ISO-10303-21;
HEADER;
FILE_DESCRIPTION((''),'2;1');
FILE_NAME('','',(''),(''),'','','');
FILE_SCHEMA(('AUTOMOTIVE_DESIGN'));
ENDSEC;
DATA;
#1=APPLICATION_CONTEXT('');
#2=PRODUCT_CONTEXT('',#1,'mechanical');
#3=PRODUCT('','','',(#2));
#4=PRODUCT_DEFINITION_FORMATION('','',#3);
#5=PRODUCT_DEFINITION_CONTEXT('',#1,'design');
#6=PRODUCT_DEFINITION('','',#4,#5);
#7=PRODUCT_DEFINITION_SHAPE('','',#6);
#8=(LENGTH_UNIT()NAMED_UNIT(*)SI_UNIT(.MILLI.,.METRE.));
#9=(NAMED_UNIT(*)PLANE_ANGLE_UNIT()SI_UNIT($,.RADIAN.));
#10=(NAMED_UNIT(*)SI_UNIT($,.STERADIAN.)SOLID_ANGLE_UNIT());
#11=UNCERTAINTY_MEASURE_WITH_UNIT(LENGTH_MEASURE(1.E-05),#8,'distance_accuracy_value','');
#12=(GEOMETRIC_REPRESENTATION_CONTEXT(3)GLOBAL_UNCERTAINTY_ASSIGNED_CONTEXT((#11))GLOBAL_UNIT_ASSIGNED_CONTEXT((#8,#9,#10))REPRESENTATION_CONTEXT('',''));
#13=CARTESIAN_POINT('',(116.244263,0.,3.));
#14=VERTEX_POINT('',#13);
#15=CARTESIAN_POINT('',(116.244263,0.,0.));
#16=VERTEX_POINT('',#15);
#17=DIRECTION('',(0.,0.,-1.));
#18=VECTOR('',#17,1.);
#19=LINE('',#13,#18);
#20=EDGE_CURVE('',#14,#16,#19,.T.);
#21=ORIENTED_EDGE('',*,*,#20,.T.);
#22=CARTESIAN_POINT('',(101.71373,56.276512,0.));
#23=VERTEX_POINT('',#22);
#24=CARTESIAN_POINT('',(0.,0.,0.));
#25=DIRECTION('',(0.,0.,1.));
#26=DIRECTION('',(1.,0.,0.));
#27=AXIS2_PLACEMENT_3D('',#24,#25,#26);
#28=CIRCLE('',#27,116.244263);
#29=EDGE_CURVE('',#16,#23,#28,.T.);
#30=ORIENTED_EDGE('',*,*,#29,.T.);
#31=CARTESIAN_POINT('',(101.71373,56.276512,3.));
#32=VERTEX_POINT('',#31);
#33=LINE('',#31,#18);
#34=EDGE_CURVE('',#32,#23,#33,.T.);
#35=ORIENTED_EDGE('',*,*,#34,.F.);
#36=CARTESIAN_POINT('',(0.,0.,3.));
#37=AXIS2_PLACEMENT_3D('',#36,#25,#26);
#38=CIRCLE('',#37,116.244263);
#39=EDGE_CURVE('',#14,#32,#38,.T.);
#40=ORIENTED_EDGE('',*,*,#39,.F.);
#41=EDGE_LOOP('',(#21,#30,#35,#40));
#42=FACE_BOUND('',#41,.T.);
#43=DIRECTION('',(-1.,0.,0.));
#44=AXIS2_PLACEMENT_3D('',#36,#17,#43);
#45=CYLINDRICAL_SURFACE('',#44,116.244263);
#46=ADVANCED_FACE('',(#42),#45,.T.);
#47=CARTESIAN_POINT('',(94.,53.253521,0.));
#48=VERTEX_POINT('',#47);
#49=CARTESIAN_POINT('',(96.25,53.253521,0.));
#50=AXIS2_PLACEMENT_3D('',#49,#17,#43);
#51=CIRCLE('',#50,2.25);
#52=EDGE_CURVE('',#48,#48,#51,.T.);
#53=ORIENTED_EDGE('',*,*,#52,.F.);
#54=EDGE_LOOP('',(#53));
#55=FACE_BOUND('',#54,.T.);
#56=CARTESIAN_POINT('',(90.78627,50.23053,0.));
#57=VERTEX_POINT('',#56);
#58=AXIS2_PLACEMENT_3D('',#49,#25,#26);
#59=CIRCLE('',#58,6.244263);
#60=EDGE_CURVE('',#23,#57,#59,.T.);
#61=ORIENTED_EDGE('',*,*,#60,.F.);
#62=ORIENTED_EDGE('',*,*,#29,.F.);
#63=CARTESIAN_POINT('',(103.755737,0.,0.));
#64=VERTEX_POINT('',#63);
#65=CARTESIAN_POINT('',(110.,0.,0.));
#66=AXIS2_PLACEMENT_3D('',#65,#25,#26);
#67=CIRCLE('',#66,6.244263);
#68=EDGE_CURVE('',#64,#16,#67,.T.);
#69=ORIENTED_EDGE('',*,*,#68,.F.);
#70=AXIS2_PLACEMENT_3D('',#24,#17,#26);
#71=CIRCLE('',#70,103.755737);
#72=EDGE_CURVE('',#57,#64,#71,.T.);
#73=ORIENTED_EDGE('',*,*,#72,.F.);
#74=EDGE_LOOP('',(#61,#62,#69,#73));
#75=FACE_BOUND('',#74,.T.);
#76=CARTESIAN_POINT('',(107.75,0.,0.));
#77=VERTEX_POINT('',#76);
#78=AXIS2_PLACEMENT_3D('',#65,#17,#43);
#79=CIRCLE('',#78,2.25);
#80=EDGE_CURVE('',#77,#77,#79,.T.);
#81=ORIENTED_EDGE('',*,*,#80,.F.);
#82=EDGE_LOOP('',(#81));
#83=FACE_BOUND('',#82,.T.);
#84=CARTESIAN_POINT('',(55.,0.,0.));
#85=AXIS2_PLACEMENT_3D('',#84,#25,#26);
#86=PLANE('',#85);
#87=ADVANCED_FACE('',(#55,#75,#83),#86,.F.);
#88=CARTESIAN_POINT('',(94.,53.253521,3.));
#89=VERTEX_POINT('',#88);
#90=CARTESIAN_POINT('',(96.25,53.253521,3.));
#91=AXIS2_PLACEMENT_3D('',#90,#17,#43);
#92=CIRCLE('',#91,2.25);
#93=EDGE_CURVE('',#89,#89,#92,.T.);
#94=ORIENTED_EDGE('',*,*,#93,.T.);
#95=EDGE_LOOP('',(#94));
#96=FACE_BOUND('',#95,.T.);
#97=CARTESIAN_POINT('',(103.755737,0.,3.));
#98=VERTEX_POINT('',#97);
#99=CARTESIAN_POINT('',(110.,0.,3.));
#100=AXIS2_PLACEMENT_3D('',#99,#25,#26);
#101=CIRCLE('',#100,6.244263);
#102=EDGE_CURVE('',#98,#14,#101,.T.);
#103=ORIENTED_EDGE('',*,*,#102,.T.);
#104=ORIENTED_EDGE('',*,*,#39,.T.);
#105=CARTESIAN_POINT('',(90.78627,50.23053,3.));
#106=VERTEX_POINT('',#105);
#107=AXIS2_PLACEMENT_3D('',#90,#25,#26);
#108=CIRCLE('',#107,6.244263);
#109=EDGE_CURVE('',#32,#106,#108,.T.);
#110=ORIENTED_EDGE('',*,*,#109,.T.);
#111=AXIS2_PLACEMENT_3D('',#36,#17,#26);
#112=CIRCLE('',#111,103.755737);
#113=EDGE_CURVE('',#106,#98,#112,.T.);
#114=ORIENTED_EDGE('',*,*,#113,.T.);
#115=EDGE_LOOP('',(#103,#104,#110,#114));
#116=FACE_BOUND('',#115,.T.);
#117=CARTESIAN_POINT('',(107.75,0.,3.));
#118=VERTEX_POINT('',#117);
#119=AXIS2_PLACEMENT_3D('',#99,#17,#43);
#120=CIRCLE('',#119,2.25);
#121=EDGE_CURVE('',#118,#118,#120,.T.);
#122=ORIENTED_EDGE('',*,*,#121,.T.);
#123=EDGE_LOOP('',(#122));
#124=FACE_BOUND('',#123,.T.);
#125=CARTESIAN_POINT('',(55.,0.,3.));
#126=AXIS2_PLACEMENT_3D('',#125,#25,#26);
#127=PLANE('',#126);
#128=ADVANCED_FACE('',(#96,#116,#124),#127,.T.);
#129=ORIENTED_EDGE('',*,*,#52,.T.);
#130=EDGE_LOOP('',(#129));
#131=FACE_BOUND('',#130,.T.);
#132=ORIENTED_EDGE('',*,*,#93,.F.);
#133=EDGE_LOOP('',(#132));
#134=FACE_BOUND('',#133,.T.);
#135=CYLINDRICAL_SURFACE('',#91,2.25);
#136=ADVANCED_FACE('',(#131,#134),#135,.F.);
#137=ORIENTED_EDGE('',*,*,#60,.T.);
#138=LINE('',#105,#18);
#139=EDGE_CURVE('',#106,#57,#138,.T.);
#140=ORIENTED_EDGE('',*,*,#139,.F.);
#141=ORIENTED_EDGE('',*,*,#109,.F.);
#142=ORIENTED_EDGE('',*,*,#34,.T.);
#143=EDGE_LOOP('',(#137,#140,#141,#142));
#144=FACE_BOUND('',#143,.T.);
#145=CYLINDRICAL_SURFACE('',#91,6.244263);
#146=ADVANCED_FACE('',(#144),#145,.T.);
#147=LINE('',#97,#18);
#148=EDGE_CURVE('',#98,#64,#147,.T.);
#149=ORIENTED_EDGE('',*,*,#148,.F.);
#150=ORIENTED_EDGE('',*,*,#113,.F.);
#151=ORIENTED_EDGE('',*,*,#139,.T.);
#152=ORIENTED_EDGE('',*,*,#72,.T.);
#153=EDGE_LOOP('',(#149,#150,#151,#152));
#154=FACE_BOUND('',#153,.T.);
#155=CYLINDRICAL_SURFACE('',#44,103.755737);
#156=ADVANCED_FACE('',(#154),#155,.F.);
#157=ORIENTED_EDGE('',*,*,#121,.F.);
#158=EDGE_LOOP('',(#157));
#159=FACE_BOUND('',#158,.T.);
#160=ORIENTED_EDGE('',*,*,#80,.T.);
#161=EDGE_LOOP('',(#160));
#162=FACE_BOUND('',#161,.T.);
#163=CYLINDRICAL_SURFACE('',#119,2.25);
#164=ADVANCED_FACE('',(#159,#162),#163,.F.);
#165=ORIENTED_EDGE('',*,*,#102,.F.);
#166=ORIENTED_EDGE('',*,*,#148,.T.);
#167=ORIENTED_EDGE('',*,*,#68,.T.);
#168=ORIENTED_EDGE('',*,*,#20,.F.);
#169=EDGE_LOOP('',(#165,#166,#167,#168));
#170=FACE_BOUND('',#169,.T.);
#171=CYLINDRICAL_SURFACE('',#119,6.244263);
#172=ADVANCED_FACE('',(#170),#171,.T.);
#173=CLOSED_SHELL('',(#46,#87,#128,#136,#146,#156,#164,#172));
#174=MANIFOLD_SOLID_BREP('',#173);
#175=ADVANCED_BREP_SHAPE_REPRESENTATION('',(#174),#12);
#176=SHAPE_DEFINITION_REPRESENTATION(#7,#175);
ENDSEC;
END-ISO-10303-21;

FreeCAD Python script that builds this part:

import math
import FreeCAD as App
import Part
import Sketcher

doc = App.newDocument("Part")
params = doc.addObject("Spreadsheet::Sheet", "Params")
for row, (alias, value) in enumerate([
    ("pad1_length", "3 mm"),
    ("sketch2_diameter", "4.5 mm"),
], start=1):
    params.set(f"A{row}", alias)
    params.set(f"B{row}", "=" + value)
    params.setAlias(f"B{row}", alias)

body = doc.addObject("PartDesign::Body", "Body")

# Sketch on XY plane
sketch1 = body.newObject("Sketcher::SketchObject", "Sketch")
sketch1.AttachmentSupport = (doc.getObject("XY_Plane"), [""])
sketch1.MapMode = "FlatFace"
sketch1.addGeometry([
    Part.ArcOfCircle(Part.Circle(App.Vector(0, 0, 0), App.Vector(0, 0, 1), 116), math.radians(0), math.radians(29)),
    Part.ArcOfCircle(Part.Circle(App.Vector(96, 53, 0), App.Vector(0, 0, 1), 6), math.radians(29), math.radians(209)),
    Part.ArcOfCircle(Part.Circle(App.Vector(0, 0, 0), App.Vector(0, 0, 1), 104), math.radians(0), math.radians(29)),
    Part.ArcOfCircle(Part.Circle(App.Vector(110, 0, 0), App.Vector(0, 0, 1), 6), math.radians(180), math.radians(360)),
], False)
sketch1.addConstraint([
    Sketcher.Constraint("Tangent", 0, 2, 1, 1),
    Sketcher.Constraint("Tangent", 1, 2, 2, 2),
    Sketcher.Constraint("Tangent", 2, 1, 3, 1),
    Sketcher.Constraint("Tangent", 3, 2, 0, 1),
    Sketcher.Constraint("Coincident", 0, 3, -1, 1),
    Sketcher.Constraint("Coincident", 2, 3, -1, 1),
    Sketcher.Constraint("PointOnObject", 3, 3, -1),
    Sketcher.Constraint("DistanceX", -1, 1, 3, 3, 110.0),
    Sketcher.Constraint("DistanceX", -1, 1, 1, 3, 96.25),
    Sketcher.Constraint("Radius", 0, 116.244263),
])
pad1 = body.newObject("PartDesign::Pad", "Pad")
pad1.Profile = sketch1
pad1.setExpression("Length", "Params.pad1_length")

# Sketch on XY plane
sketch2 = body.newObject("Sketcher::SketchObject", "Sketch001")
sketch2.AttachmentSupport = (doc.getObject("XY_Plane"), [""])
sketch2.MapMode = "FlatFace"
sketch2.addGeometry([
    Part.Circle(App.Vector(110, 0, 0), App.Vector(0, 0, 1), 2.2),
    Part.Circle(App.Vector(96.2, 53.3, 0), App.Vector(0, 0, 1), 2.2),
], False)
sketch2.addConstraint([
    Sketcher.Constraint("Equal", 0, 1),
    Sketcher.Constraint("PointOnObject", 0, 3, -1),
    Sketcher.Constraint("Diameter", 0, 4.5),
    Sketcher.Constraint("DistanceX", -1, 1, 0, 3, 110.0),
    Sketcher.Constraint("DistanceX", -1, 1, 1, 3, 96.25),
    Sketcher.Constraint("DistanceY", -1, 1, 1, 3, 53.253521),
])
sketch2.setExpression("Constraints[2]", "Params.sketch2_diameter")
pocket1 = body.newObject("PartDesign::Pocket", "Pocket")
pocket1.Profile = sketch2
pocket1.Type = "ThroughAll"
pocket1.Reversed = True

doc.recompute()
